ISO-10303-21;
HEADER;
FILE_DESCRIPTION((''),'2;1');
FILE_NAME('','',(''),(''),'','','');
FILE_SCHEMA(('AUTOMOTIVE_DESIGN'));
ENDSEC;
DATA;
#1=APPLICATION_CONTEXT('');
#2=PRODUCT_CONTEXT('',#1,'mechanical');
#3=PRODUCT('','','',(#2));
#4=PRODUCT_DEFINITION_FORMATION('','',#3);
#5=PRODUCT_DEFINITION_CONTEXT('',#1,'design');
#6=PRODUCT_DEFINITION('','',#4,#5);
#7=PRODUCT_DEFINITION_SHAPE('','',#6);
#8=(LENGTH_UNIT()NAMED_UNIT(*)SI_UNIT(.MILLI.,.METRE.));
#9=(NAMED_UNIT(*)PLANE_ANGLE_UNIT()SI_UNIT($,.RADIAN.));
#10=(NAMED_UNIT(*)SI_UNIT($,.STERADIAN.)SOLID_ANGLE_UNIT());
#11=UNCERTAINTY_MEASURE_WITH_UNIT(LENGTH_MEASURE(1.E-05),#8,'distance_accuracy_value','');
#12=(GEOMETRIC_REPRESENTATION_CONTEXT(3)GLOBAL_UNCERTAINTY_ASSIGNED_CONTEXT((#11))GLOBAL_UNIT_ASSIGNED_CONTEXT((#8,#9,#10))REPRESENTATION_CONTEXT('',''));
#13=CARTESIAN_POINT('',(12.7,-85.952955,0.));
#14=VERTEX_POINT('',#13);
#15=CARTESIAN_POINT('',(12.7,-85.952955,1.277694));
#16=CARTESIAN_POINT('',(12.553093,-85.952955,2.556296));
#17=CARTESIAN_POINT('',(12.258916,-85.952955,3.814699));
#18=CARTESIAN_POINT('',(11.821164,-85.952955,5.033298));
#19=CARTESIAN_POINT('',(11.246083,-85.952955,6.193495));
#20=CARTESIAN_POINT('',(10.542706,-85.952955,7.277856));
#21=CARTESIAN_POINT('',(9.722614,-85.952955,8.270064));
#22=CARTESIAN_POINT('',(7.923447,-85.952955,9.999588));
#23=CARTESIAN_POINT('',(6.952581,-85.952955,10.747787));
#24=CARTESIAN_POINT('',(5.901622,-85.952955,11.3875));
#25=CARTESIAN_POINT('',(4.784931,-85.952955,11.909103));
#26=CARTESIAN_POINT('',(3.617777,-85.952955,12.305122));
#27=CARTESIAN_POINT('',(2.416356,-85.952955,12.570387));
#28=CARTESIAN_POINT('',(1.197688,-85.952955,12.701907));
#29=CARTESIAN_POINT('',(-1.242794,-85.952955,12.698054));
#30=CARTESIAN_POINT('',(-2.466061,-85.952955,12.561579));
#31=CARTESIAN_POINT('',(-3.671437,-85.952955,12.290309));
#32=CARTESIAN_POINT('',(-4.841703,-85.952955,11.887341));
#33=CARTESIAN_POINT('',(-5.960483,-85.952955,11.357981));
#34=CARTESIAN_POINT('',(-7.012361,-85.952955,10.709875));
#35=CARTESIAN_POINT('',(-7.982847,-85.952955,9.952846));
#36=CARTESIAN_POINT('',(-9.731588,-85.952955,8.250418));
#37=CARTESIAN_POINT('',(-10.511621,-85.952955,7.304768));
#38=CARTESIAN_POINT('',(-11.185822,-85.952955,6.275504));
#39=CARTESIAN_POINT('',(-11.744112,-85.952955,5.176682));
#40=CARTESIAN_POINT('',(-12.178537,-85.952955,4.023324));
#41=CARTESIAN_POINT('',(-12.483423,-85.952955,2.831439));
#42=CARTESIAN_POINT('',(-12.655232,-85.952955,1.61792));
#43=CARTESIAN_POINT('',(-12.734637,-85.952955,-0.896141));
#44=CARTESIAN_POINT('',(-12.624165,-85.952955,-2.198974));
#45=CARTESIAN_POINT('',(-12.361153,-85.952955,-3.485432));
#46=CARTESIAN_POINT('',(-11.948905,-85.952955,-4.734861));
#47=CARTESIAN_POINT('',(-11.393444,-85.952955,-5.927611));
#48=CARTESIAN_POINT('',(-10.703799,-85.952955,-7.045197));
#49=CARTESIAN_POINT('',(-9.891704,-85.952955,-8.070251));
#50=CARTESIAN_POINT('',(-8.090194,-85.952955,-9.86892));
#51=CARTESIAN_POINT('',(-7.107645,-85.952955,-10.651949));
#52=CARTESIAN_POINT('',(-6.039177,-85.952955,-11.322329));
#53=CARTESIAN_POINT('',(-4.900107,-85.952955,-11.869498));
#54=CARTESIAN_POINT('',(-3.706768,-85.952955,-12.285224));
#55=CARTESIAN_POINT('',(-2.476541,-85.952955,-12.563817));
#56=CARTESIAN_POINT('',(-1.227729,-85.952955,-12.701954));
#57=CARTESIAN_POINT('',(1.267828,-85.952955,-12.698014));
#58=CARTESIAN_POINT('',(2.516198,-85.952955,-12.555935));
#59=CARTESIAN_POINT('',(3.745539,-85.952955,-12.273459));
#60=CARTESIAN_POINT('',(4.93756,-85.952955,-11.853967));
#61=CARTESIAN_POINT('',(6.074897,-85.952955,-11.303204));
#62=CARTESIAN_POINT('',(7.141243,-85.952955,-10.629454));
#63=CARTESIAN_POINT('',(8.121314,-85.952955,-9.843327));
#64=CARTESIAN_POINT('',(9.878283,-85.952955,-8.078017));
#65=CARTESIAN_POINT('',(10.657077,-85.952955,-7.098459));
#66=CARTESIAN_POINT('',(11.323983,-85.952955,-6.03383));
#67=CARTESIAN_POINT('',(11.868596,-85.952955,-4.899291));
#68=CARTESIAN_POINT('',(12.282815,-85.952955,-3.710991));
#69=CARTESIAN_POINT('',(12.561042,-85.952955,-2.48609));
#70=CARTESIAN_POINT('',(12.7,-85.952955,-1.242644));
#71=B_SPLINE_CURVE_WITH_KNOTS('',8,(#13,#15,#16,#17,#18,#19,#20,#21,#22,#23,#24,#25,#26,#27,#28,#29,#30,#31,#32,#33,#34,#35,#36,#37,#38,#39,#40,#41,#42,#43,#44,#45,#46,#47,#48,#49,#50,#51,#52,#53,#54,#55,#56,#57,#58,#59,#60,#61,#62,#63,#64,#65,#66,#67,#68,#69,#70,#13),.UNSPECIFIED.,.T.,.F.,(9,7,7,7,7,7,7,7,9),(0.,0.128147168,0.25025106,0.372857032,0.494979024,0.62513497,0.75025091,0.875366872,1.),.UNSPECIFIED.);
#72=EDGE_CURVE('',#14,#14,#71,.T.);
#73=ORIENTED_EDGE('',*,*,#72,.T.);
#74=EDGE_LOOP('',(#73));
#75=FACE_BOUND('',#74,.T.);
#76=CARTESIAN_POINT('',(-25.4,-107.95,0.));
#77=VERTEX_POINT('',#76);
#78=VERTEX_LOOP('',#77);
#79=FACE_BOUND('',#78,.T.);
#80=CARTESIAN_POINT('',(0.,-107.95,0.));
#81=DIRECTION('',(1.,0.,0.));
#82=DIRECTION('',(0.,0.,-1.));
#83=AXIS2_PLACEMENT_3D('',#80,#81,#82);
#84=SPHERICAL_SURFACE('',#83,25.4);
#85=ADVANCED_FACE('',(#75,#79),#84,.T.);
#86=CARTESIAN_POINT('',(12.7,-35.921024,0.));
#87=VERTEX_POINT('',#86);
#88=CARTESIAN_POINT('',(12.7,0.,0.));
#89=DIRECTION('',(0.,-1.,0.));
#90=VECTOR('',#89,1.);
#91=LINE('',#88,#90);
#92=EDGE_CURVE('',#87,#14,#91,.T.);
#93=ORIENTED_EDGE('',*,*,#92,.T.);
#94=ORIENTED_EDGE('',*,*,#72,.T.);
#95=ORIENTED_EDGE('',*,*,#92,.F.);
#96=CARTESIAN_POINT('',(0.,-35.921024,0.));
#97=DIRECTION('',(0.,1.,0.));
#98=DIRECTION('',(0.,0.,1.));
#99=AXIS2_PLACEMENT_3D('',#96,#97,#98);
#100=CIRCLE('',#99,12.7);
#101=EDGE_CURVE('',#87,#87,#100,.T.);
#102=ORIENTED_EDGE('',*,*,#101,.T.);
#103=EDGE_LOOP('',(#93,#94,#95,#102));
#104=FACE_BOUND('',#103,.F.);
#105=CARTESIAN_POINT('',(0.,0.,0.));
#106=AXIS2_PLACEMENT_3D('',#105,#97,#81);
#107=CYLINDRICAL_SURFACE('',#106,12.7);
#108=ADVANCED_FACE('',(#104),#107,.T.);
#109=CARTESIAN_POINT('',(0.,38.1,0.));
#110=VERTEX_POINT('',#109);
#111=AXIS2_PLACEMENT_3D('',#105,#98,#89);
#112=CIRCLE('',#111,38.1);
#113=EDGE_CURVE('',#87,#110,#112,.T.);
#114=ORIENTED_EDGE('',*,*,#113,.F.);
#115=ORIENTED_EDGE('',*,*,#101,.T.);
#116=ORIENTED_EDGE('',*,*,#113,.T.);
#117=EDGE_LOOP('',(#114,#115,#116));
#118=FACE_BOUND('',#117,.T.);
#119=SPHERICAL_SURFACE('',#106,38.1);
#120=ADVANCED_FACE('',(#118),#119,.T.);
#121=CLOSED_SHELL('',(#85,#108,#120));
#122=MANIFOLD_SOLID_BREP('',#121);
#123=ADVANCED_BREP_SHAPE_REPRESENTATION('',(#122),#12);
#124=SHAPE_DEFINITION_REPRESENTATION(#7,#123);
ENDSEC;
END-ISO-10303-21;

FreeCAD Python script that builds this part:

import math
import FreeCAD as App
import Part
import Sketcher
from FreeCAD import Vector
Q = App.Units.Quantity

doc = App.newDocument("Part")
body = doc.addObject("PartDesign::Body", "Body")

sketch1 = doc.addObject("Sketcher::SketchObject", "Sketch")
body.addObject(sketch1)
sketch1.AttachmentSupport = (doc.XY_Plane, [""])
sketch1.MapMode = "FlatFace"
sketch1.addGeometry([
    Part.ArcOfCircle(Part.Circle(Vector(0, 0, 0), Vector(0, 0, 1), 38.1), math.radians(-90), math.radians(90)),
    Part.LineSegment(Vector(0, 38.1, 0), Vector(0, -38.1, 0)),
], False)
sketch1.addConstraint([
    Sketcher.Constraint("Coincident", 0, 1, 1, 2),
    Sketcher.Constraint("Coincident", 1, 1, 0, 2),
    Sketcher.Constraint("Vertical", 1),
    Sketcher.Constraint("Coincident", 0, 3, -1, 1),
    Sketcher.Constraint("PointOnObject", 0, 1, -2),
    Sketcher.Constraint("Radius", 0, Q("1.5 in")),
])
revolution = doc.addObject("PartDesign::Revolution", "Revolution")
body.addObject(revolution)
revolution.Profile = sketch1
revolution.ReferenceAxis = (sketch1, ["V_Axis"])
revolution.Angle = 360

sketch2 = doc.addObject("Sketcher::SketchObject", "Sketch001")
body.addObject(sketch2)
sketch2.AttachmentSupport = (doc.XZ_Plane, [""])
sketch2.MapMode = "FlatFace"
sketch2.addGeometry(Part.Circle(Vector(0, 0, 0), Vector(0, 0, 1), 12.7), False)
sketch2.addConstraint([
    Sketcher.Constraint("Coincident", 0, 3, -1, 1),
    Sketcher.Constraint("Diameter", 0, Q("1 in")),
])
pad1 = doc.addObject("PartDesign::Pad", "Pad")
body.addObject(pad1)
pad1.Profile = sketch2
pad1.Length = Q("4 in")

sketch3 = doc.addObject("Sketcher::SketchObject", "Sketch002")
body.addObject(sketch3)
sketch3.AttachmentSupport = (doc.XZ_Plane, [""])
sketch3.MapMode = "FlatFace"
sketch3.AttachmentOffset = App.Placement(Vector(0, 0, 4.25 * 25.4), App.Rotation())
sketch3.addGeometry([
    Part.ArcOfCircle(Part.Circle(Vector(0, 0, 0), Vector(0, 0, 1), 25.4), math.radians(180), math.radians(360)),
    Part.LineSegment(Vector(25.4, 0, 0), Vector(-25.4, 0, 0)),
], False)
sketch3.addConstraint([
    Sketcher.Constraint("Coincident", 0, 1, 1, 2),
    Sketcher.Constraint("Coincident", 1, 1, 0, 2),
    Sketcher.Constraint("Horizontal", 1),
    Sketcher.Constraint("Coincident", 0, 3, -1, 1),
    Sketcher.Constraint("PointOnObject", 0, 1, -1),
    Sketcher.Constraint("Radius", 0, Q("1 in")),
])
revolution2 = doc.addObject("PartDesign::Revolution", "Revolution001")
body.addObject(revolution2)
revolution2.Profile = sketch3
revolution2.ReferenceAxis = (sketch3, ["H_Axis"])
revolution2.Angle = 360

doc.recompute()
